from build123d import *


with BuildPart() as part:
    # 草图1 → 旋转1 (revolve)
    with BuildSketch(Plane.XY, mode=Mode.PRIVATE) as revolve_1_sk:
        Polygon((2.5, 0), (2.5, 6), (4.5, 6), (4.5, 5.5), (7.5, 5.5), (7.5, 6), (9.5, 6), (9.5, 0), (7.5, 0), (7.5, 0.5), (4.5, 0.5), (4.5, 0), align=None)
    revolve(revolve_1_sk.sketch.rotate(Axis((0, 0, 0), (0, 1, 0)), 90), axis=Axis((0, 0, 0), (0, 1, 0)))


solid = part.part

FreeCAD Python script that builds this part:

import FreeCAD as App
import Part
import Sketcher

doc = App.newDocument("Part")
body = doc.addObject("PartDesign::Body", "Body")

# Sketch on XY plane
sketch1 = body.newObject("Sketcher::SketchObject", "Sketch")
sketch1.AttachmentSupport = (doc.getObject("XY_Plane"), [""])
sketch1.MapMode = "FlatFace"
sketch1.addGeometry([
    Part.LineSegment(App.Vector(2.5, 6, 0), App.Vector(2.5, 0, 0)),  # 0
    Part.LineSegment(App.Vector(2.5, 0, 0), App.Vector(4.5, 0, 0)),  # 1
    Part.LineSegment(App.Vector(4.5, 0, 0), App.Vector(4.5, 0.5, 0)),  # 2
    Part.LineSegment(App.Vector(4.5, 0.5, 0), App.Vector(7.5, 0.5, 0)),  # 3
    Part.LineSegment(App.Vector(7.5, 0.5, 0), App.Vector(7.5, 0, 0)),  # 4
    Part.LineSegment(App.Vector(7.5, 0, 0), App.Vector(9.5, 0, 0)),  # 5
    Part.LineSegment(App.Vector(9.5, 0, 0), App.Vector(9.5, 6, 0)),  # 6
    Part.LineSegment(App.Vector(9.5, 6, 0), App.Vector(7.5, 6, 0)),  # 7
    Part.LineSegment(App.Vector(7.5, 6, 0), App.Vector(7.5, 5.5, 0)),  # 8
    Part.LineSegment(App.Vector(7.5, 5.5, 0), App.Vector(4.5, 5.5, 0)),  # 9
    Part.LineSegment(App.Vector(4.5, 5.5, 0), App.Vector(4.5, 6, 0)),  # 10
    Part.LineSegment(App.Vector(4.5, 6, 0), App.Vector(2.5, 6, 0)),  # 11
], False)
sketch1.addConstraint([
    Sketcher.Constraint("Coincident", 0, 2, 1, 1),
    Sketcher.Constraint("Coincident", 1, 2, 2, 1),
    Sketcher.Constraint("Coincident", 2, 2, 3, 1),
    Sketcher.Constraint("Coincident", 3, 2, 4, 1),
    Sketcher.Constraint("Coincident", 4, 2, 5, 1),
    Sketcher.Constraint("Coincident", 5, 2, 6, 1),
    Sketcher.Constraint("Coincident", 6, 2, 7, 1),
    Sketcher.Constraint("Coincident", 7, 2, 8, 1),
    Sketcher.Constraint("Coincident", 8, 2, 9, 1),
    Sketcher.Constraint("Coincident", 9, 2, 10, 1),
    Sketcher.Constraint("Coincident", 10, 2, 11, 1),
    Sketcher.Constraint("Coincident", 11, 2, 0, 1),
    Sketcher.Constraint("Vertical", 0),
    Sketcher.Constraint("Horizontal", 1),
    Sketcher.Constraint("Vertical", 2),
    Sketcher.Constraint("Horizontal", 3),
    Sketcher.Constraint("Vertical", 4),
    Sketcher.Constraint("Horizontal", 5),
    Sketcher.Constraint("Vertical", 6),
    Sketcher.Constraint("Horizontal", 7),
    Sketcher.Constraint("Vertical", 8),
    Sketcher.Constraint("Horizontal", 9),
    Sketcher.Constraint("Vertical", 10),
    Sketcher.Constraint("Horizontal", 11),
    Sketcher.Constraint("PointOnObject", 0, 2, -1),
    Sketcher.Constraint("PointOnObject", 4, 2, -1),
    Sketcher.Constraint("Horizontal", 7, 2, 10, 2),
    Sketcher.Constraint("Vertical", 4, 2, 7, 2),
    Sketcher.Constraint("Vertical", 2, 2, 9, 2),
    Sketcher.Constraint("Equal", 1, 5),
    Sketcher.Constraint("Equal", 4, 8),
    Sketcher.Constraint("DistanceX", 1, 1, 1, 2, 2.0),
    Sketcher.Constraint("DistanceX", 3, 1, 3, 2, 3.0),
    Sketcher.Constraint("DistanceY", 0, 2, 0, 1, 6.0),
    Sketcher.Constraint("DistanceY", 2, 1, 2, 2, 0.5),
    Sketcher.Constraint("DistanceX", -1, 1, 0, 2, 2.5),
])
revolution = body.newObject("PartDesign::Revolution", "Revolution")
revolution.Profile = sketch1
revolution.ReferenceAxis = (sketch1, ["V_Axis"])
revolution.Angle = 360

doc.recompute()
